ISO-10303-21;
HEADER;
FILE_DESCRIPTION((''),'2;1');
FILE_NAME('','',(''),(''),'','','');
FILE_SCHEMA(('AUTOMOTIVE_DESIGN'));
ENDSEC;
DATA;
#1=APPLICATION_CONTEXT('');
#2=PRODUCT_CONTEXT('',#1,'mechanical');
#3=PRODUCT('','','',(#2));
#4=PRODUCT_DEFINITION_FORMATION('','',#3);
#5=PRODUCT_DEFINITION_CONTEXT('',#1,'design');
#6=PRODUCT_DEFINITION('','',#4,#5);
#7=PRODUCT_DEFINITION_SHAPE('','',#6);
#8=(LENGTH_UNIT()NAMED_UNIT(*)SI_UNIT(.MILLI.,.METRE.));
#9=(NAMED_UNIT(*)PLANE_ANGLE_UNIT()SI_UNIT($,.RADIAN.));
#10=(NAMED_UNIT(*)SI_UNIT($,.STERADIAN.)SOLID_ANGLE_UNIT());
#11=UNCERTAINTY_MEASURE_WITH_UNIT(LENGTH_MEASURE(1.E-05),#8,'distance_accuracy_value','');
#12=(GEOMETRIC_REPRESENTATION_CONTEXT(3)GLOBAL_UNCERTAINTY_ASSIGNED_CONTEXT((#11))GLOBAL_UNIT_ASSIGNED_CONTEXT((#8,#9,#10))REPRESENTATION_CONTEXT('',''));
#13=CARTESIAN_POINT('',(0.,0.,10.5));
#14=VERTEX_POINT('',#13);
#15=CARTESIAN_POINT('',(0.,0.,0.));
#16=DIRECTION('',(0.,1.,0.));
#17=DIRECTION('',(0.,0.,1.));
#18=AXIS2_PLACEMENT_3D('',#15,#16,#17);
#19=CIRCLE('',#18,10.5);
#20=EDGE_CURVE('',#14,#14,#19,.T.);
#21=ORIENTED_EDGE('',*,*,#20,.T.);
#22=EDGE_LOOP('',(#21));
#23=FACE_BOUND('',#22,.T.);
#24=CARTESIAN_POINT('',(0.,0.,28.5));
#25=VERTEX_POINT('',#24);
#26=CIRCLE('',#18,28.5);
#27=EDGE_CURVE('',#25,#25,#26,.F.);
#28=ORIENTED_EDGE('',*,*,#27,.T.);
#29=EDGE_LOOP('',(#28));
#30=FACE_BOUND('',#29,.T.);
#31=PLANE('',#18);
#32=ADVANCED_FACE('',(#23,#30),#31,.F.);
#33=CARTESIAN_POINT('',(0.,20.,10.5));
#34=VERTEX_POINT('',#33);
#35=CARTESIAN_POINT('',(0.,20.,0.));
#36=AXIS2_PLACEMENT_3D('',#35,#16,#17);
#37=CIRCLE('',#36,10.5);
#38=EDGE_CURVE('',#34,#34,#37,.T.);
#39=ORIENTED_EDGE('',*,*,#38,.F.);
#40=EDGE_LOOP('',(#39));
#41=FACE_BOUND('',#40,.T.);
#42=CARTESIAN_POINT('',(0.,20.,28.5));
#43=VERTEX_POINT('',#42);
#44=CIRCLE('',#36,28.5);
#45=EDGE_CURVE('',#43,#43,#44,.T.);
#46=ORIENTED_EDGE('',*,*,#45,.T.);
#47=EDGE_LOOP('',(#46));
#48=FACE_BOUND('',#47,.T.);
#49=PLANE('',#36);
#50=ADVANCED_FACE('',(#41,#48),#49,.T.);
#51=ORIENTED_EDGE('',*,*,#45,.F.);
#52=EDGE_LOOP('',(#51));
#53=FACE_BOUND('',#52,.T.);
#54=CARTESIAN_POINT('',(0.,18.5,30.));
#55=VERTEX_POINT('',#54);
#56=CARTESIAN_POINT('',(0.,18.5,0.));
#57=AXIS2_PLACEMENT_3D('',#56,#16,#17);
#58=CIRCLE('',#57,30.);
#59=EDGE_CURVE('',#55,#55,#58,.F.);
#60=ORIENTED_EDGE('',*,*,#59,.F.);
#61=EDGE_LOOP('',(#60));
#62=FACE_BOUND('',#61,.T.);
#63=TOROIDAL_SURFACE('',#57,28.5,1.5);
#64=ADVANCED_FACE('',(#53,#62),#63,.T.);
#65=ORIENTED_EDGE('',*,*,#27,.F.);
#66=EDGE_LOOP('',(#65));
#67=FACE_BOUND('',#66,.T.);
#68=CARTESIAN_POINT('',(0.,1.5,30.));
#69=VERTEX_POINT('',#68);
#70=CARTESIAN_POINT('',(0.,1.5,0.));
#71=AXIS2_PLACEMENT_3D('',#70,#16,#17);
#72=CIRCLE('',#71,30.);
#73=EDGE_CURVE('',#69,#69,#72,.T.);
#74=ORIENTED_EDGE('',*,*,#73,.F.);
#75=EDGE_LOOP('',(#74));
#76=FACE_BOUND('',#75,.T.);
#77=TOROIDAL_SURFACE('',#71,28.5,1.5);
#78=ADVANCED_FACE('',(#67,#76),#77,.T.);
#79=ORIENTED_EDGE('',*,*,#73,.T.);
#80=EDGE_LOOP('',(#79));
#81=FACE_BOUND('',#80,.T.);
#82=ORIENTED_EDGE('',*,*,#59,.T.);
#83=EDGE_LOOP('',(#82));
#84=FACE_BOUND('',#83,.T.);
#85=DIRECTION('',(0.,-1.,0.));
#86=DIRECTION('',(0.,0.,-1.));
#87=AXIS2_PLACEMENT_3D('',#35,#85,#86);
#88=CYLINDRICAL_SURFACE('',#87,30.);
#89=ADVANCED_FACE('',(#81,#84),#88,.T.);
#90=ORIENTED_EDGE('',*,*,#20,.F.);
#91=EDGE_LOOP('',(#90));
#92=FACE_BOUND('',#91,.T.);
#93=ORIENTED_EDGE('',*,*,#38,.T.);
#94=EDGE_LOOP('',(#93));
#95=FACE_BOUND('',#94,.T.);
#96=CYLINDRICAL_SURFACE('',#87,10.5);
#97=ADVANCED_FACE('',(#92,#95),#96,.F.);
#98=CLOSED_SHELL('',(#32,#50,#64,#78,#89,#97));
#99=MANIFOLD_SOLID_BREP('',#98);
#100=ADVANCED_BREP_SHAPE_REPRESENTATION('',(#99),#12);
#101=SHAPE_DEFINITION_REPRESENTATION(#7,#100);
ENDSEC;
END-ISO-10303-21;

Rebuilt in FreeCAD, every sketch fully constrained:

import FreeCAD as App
import Part
import Sketcher
from FreeCAD import Vector


def edges_at(feature, points):
    """Names of the edges that pass closest to the given points."""
    edges = feature.Shape.Edges
    near = lambda p: min(range(len(edges)), key=lambda i: edges[i].distToShape(Part.Vertex(*p))[0])
    return sorted({f"Edge{near(p) + 1}" for p in points})

doc = App.newDocument("Part")
body = doc.addObject("PartDesign::Body", "Body")

# Sketch on XZ plane
sketch1 = body.newObject("Sketcher::SketchObject", "Sketch")
sketch1.AttachmentSupport = (doc.getObject("XZ_Plane"), [""])
sketch1.MapMode = "FlatFace"
sketch1.addGeometry(Part.Circle(Vector(0, 0, 0), Vector(0, 0, 1), 30), False)
sketch1.addGeometry(Part.Circle(Vector(0, 0, 0), Vector(0, 0, 1), 10.5), False)
sketch1.addConstraint(Sketcher.Constraint("Coincident", 0, 3, -1, 1))
sketch1.addConstraint(Sketcher.Constraint("Coincident", 1, 3, -1, 1))
sketch1.addConstraint(Sketcher.Constraint("Diameter", 0, 60.0))
sketch1.addConstraint(Sketcher.Constraint("Diameter", 1, 21.0))
pad1 = body.newObject("PartDesign::Pad", "Pad")
pad1.Profile = sketch1
pad1.Length = 20
pad1.Reversed = True
doc.recompute()

fillet = body.newObject("PartDesign::Fillet", "Fillet")
fillet.Base = (pad1, edges_at(pad1, [(0, 0, -30), (0, 20, -30)]))
fillet.Radius = 1.5

doc.recompute()
